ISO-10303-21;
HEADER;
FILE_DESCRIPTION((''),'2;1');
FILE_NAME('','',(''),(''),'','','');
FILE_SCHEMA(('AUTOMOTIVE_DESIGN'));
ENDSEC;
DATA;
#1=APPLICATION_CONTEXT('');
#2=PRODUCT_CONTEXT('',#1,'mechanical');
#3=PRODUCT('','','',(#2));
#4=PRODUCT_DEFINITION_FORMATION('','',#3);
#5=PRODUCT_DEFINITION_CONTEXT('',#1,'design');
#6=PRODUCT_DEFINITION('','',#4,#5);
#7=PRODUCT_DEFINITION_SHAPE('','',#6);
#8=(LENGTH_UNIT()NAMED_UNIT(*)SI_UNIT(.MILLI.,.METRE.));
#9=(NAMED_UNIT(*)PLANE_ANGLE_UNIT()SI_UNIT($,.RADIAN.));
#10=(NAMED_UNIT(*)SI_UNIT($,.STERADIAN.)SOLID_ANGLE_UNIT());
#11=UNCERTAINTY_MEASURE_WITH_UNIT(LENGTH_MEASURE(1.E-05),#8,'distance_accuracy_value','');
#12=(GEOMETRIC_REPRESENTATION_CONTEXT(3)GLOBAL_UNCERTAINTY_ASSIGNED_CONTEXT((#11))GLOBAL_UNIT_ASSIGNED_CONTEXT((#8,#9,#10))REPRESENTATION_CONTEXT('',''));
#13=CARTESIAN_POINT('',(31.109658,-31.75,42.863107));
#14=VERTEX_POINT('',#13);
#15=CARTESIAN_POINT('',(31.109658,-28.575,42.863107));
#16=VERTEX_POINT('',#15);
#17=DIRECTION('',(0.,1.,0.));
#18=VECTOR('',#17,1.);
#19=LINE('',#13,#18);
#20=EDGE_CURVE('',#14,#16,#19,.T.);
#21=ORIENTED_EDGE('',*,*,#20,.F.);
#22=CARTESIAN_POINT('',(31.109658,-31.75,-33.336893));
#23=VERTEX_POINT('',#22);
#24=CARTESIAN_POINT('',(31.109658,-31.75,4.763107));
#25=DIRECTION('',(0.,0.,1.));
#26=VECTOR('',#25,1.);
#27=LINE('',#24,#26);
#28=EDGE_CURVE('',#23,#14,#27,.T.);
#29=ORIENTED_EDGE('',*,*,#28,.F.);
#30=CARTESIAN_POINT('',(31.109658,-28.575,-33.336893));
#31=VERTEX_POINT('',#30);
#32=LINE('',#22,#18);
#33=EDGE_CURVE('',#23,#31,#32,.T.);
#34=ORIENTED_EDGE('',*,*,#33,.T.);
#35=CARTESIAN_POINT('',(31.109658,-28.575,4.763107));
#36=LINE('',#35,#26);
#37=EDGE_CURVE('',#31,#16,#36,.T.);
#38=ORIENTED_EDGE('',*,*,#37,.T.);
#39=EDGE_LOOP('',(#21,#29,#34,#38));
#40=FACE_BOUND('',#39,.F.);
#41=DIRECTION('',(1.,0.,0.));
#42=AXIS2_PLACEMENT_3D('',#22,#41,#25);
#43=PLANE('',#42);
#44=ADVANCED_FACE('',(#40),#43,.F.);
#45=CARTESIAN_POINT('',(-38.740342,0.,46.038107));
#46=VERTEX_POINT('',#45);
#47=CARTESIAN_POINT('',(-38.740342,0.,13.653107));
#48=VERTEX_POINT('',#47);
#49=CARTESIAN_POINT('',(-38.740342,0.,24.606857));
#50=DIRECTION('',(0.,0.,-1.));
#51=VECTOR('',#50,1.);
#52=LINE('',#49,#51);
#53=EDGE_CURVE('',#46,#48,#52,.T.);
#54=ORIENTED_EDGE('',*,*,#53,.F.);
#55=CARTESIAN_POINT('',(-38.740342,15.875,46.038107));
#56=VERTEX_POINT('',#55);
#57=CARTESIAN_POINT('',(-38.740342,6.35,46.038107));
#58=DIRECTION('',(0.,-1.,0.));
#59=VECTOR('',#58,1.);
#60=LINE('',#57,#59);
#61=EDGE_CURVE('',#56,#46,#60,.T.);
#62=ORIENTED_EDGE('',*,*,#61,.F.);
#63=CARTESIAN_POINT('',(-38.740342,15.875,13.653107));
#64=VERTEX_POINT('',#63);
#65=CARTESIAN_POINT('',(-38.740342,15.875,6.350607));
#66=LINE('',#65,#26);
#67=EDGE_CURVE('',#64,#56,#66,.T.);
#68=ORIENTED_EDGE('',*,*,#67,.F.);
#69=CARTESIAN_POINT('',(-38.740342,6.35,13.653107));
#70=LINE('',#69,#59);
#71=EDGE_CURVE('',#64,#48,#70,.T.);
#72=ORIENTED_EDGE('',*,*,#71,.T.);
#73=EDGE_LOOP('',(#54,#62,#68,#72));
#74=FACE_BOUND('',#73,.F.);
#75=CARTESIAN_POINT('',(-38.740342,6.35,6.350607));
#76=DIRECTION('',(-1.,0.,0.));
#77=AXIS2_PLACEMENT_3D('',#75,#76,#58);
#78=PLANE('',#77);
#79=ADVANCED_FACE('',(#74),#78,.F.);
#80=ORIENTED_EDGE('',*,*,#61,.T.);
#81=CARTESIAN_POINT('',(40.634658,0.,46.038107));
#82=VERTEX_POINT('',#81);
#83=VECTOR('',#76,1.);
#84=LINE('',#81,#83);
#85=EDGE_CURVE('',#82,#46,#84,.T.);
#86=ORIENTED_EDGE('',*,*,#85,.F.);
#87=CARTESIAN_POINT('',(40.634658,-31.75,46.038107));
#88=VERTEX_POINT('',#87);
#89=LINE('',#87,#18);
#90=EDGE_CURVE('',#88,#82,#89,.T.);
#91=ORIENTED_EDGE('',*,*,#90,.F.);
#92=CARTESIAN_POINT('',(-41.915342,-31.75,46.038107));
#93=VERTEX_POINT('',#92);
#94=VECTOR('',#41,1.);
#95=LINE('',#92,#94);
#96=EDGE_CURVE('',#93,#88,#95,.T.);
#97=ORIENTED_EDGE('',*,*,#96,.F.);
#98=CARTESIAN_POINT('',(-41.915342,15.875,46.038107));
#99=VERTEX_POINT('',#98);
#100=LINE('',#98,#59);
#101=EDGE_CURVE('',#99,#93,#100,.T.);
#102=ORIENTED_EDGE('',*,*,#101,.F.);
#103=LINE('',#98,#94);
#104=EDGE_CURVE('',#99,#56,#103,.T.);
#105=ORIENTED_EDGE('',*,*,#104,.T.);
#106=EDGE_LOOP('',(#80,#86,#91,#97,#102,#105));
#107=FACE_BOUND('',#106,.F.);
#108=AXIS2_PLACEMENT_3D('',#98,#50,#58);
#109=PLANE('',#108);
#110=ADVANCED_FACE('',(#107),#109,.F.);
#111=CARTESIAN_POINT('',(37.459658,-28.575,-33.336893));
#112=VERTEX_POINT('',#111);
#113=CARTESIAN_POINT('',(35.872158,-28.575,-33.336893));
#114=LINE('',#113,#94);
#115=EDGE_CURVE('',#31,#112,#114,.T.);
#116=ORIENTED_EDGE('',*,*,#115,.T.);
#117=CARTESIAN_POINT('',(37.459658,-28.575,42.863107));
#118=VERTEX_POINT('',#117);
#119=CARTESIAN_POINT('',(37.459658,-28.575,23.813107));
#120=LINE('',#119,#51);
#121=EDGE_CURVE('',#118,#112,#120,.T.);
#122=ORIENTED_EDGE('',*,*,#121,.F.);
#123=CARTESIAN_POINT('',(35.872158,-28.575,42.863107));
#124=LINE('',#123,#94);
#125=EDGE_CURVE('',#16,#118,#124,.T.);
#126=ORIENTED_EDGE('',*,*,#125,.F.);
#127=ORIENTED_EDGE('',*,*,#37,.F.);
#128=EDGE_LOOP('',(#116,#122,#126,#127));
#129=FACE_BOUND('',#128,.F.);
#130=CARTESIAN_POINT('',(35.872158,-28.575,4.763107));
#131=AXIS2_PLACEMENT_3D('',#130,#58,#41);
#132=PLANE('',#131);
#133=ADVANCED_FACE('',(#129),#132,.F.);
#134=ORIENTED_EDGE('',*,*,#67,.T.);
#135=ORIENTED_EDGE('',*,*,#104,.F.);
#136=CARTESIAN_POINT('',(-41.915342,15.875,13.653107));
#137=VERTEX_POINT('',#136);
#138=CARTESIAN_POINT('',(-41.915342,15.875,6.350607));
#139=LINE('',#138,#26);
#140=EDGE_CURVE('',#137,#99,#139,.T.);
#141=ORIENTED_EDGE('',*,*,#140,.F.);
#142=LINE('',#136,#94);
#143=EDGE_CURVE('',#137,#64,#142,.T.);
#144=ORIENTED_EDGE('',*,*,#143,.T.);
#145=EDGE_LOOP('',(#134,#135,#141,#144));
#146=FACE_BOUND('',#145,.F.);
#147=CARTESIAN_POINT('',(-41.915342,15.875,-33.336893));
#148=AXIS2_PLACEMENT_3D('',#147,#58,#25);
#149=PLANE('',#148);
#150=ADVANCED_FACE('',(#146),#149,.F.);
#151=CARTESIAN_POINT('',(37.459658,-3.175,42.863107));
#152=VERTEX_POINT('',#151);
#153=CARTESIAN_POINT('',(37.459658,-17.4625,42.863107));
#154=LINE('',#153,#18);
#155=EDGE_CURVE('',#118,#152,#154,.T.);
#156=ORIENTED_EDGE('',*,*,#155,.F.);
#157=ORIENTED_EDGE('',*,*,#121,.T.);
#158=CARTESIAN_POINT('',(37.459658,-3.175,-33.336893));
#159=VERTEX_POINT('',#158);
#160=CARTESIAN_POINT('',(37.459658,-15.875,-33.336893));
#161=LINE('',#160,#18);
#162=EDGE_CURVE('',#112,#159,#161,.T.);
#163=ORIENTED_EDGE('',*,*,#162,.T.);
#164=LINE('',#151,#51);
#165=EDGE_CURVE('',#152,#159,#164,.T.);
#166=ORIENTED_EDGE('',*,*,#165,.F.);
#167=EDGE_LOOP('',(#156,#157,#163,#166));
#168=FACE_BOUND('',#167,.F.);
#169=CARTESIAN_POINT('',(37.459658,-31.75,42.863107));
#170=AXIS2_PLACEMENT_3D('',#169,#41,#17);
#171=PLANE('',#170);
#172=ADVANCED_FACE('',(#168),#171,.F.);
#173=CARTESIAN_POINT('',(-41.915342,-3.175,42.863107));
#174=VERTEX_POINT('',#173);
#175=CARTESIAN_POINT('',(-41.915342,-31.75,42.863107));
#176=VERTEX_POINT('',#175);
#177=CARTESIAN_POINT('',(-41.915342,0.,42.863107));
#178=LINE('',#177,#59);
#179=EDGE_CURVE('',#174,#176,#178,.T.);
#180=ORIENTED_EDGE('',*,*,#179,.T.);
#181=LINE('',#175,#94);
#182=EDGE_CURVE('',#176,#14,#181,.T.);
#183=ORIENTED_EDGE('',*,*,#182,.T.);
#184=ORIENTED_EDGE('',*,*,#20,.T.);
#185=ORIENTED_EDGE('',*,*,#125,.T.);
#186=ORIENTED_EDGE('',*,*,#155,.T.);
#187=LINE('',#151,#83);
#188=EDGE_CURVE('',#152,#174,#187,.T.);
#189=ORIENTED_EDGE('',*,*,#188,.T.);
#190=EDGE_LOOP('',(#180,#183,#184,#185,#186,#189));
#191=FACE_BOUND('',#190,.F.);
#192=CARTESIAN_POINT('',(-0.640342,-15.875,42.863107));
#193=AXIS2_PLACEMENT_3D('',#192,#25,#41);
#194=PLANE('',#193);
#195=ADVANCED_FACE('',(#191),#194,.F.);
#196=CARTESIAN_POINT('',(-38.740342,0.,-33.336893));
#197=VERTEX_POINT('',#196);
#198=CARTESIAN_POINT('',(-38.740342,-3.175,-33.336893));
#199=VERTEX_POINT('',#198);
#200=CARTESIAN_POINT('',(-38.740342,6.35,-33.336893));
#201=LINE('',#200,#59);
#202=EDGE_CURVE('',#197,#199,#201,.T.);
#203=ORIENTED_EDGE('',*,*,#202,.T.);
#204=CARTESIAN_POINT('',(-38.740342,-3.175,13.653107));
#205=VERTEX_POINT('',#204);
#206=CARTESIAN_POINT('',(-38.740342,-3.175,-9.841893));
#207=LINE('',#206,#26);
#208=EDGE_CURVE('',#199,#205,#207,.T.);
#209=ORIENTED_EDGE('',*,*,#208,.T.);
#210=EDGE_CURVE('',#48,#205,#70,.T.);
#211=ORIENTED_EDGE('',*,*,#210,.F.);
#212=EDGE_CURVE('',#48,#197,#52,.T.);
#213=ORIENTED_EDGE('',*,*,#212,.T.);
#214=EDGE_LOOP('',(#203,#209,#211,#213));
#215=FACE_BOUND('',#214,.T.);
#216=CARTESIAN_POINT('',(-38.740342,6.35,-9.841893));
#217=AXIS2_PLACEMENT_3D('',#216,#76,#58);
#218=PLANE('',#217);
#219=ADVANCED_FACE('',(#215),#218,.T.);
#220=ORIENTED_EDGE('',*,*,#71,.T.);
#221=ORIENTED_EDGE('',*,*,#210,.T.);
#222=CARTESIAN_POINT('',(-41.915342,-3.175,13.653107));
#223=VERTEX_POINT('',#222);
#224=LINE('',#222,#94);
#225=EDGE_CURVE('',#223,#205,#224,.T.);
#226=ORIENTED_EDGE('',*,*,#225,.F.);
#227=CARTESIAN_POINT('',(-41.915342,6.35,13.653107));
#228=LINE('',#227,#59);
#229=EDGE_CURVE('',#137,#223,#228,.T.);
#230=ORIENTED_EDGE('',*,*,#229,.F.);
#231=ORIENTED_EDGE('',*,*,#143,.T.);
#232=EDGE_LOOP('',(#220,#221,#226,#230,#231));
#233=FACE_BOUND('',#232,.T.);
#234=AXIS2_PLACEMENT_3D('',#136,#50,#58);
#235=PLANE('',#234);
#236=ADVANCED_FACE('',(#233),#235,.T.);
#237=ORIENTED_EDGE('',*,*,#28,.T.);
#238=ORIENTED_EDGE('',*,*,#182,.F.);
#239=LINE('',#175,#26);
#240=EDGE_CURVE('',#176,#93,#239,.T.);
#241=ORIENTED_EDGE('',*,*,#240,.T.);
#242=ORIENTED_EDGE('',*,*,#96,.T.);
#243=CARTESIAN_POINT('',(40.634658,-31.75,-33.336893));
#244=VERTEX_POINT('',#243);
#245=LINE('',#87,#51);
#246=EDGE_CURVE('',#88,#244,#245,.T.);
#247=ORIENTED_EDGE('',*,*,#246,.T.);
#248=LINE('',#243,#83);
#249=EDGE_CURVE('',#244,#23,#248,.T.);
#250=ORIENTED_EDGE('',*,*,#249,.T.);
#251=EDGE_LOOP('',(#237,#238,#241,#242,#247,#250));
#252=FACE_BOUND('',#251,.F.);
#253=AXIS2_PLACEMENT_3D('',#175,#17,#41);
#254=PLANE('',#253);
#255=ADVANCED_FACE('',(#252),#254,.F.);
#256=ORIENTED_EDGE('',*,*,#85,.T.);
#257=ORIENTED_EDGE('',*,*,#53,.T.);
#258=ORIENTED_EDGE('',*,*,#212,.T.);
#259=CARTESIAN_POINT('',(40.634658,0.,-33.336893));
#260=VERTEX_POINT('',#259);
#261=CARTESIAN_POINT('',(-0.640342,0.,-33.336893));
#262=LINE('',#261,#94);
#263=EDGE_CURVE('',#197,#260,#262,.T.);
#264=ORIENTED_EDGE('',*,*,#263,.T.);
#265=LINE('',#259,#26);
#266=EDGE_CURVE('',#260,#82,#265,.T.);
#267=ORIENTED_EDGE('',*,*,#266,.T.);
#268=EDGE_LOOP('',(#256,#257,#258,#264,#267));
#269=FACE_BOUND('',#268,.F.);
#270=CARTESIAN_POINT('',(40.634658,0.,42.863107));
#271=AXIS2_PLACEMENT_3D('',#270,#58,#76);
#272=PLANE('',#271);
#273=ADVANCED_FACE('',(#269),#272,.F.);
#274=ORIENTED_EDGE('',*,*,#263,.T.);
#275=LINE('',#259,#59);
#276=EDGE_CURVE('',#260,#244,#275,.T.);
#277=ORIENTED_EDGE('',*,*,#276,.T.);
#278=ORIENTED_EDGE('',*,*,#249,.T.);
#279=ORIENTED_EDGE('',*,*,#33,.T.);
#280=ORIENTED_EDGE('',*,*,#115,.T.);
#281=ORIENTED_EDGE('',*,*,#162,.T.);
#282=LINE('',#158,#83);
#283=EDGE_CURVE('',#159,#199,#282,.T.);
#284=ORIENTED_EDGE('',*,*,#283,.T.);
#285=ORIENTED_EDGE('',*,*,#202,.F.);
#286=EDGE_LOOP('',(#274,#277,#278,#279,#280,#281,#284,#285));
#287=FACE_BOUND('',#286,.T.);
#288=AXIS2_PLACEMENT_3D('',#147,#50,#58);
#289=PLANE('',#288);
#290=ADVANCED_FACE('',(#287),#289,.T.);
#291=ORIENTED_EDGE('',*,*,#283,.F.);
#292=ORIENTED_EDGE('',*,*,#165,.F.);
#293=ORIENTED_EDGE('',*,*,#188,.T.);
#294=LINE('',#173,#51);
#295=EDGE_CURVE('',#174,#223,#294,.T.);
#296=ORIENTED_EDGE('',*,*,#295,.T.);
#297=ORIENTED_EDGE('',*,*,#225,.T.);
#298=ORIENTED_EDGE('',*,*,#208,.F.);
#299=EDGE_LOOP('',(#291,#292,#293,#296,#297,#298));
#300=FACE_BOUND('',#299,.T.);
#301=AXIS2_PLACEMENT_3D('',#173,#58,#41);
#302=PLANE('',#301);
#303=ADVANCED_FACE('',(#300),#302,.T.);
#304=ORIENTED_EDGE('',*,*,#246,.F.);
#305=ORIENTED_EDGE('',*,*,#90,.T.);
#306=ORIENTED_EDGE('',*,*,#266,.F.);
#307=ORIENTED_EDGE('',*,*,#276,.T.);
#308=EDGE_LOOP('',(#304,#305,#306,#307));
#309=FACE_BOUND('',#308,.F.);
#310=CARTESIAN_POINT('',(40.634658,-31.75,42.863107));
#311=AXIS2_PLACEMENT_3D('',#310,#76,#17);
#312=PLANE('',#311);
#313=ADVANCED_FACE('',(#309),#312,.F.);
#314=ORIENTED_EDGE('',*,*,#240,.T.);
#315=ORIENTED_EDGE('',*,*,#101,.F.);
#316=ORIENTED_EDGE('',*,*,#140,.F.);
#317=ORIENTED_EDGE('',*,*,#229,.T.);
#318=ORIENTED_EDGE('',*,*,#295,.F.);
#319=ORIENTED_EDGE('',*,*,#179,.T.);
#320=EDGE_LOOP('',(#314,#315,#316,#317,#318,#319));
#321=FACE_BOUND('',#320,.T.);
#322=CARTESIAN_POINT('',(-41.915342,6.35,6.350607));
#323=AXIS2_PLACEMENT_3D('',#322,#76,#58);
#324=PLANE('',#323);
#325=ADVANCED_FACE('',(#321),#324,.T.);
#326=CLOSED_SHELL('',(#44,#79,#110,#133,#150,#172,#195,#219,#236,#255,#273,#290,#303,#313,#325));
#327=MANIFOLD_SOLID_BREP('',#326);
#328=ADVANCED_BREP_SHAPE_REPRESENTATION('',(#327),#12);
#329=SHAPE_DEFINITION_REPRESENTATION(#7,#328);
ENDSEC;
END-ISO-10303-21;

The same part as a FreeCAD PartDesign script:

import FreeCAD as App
import Part
import Sketcher
Q = App.Units.Quantity


def add_polygon(sketch, points):
    """Adds a closed chain of lines whose ends are joined by coincident constraints."""
    first, n = sketch.GeometryCount, len(points)
    for a, b in zip(points, points[1:] + points[:1]):
        sketch.addGeometry(Part.LineSegment(App.Vector(*a, 0), App.Vector(*b, 0)), False)
    for i in range(n):
        sketch.addConstraint(Sketcher.Constraint("Coincident", first + i, 2, first + (i + 1) % n, 1))

doc = App.newDocument("Part")
params = doc.addObject("Spreadsheet::Sheet", "Params")
for row, (alias, value) in enumerate([
    ("sketch1_height", "3 in"),
    ("sketch1_width", "3.25 in"),
    ("pad1_length", "1.25 in"),
    ("sketch2_width", "3.125 in"),
    ("sketch2_height", "1.125 in"),
    ("pocket1_length", "4 in"),
    ("sketch3_height", "3 in"),
    ("sketch3_width", "0.375 in"),
    ("pad2_length", "0.125 in"),
    ("sketch4_width", "3.25 in"),
    ("sketch4_height", "1.25 in"),
    ("pad3_length", "0.125 in"),
    ("sketch5_width", "0.75 in"),
    ("sketch5_height", "3.125 in"),
    ("pad4_length", "0.125 in"),
    ("sketch6_width", "0.75 in"),
    ("sketch6_height", "1.85 in"),
    ("pocket2_length", "0.125 in"),
], start=1):
    params.set(f"A{row}", alias)
    params.set(f"B{row}", "=" + value)
    params.setAlias(f"B{row}", alias)

body = doc.addObject("PartDesign::Body", "Body")

# Sketch on XZ plane
sketch1 = body.newObject("Sketcher::SketchObject", "Sketch")
sketch1.AttachmentSupport = (doc.getObject("XZ_Plane"), [""])
sketch1.MapMode = "FlatFace"
add_polygon(sketch1, [(-42, 43), (-42, -33), (41, -33), (41, 43)])  # lines 0-3
sketch1.addConstraint(Sketcher.Constraint("Vertical", 0))
sketch1.addConstraint(Sketcher.Constraint("Horizontal", 1))
sketch1.addConstraint(Sketcher.Constraint("Vertical", 2))
sketch1.addConstraint(Sketcher.Constraint("Horizontal", 3))
sketch1.addConstraint(Sketcher.Constraint("DistanceY", 0, 2, 0, 1, Q("3 in")))
sketch1.addConstraint(Sketcher.Constraint("DistanceX", 1, 1, 1, 2, Q("3.25 in")))
sketch1.addConstraint(Sketcher.Constraint("DistanceX", -1, 1, 1, 2, 40.634658))
sketch1.addConstraint(Sketcher.Constraint("DistanceY", 0, 2, -1, 1, 33.336893))
sketch1.setExpression("Constraints[8]", "Params.sketch1_height")
sketch1.setExpression("Constraints[9]", "Params.sketch1_width")
pad1 = body.newObject("PartDesign::Pad", "Pad")
pad1.Profile = sketch1
pad1.setExpression("Length", "Params.pad1_length")

# Sketch on XY plane
sketch2 = body.newObject("Sketcher::SketchObject", "Sketch001")
sketch2.AttachmentSupport = (doc.getObject("XY_Plane"), [""])
sketch2.MapMode = "FlatFace"
sketch2.AttachmentOffset = App.Placement(App.Vector(0, 0, 42.863107), App.Rotation())
add_polygon(sketch2, [(-42, -3), (-42, -32), (37, -32), (37, -3)])  # lines 0-3
sketch2.addConstraint(Sketcher.Constraint("Vertical", 0))
sketch2.addConstraint(Sketcher.Constraint("Horizontal", 1))
sketch2.addConstraint(Sketcher.Constraint("Vertical", 2))
sketch2.addConstraint(Sketcher.Constraint("Horizontal", 3))
sketch2.addConstraint(Sketcher.Constraint("DistanceX", 1, 1, 1, 2, Q("3.125 in")))
sketch2.addConstraint(Sketcher.Constraint("DistanceY", 0, 2, 0, 1, Q("1.125 in")))
sketch2.addConstraint(Sketcher.Constraint("DistanceY", 0, 2, -1, 1, Q("1.25 in")))
sketch2.addConstraint(Sketcher.Constraint("DistanceX", 0, 2, -1, 1, 41.915342))
sketch2.setExpression("Constraints[8]", "Params.sketch2_width")
sketch2.setExpression("Constraints[9]", "Params.sketch2_height")
pocket1 = body.newObject("PartDesign::Pocket", "Pocket")
pocket1.Profile = sketch2
pocket1.setExpression("Length", "Params.pocket1_length")

# Sketch on XZ plane
sketch3 = body.newObject("Sketcher::SketchObject", "Sketch002")
sketch3.AttachmentSupport = (doc.getObject("XZ_Plane"), [""])
sketch3.MapMode = "FlatFace"
sketch3.AttachmentOffset = App.Placement(App.Vector(0, 0, 1.25 * 25.4), App.Rotation())
add_polygon(sketch3, [(31, 43), (31, -33), (41, -33), (41, 43)])  # lines 0-3
sketch3.addConstraint(Sketcher.Constraint("Vertical", 0))
sketch3.addConstraint(Sketcher.Constraint("Horizontal", 1))
sketch3.addConstraint(Sketcher.Constraint("Vertical", 2))
sketch3.addConstraint(Sketcher.Constraint("Horizontal", 3))
sketch3.addConstraint(Sketcher.Constraint("DistanceY", 0, 2, 0, 1, Q("3 in")))
sketch3.addConstraint(Sketcher.Constraint("DistanceX", 1, 1, 1, 2, Q("0.375 in")))
sketch3.addConstraint(Sketcher.Constraint("DistanceX", -1, 1, 1, 2, 40.634658))
sketch3.addConstraint(Sketcher.Constraint("DistanceY", 0, 2, -1, 1, 33.336893))
sketch3.setExpression("Constraints[8]", "Params.sketch3_height")
sketch3.setExpression("Constraints[9]", "Params.sketch3_width")
pad2 = body.newObject("PartDesign::Pad", "Pad001")
pad2.Profile = sketch3
pad2.setExpression("Length", "Params.pad2_length")
pad2.Reversed = True

# Sketch on XY plane
sketch4 = body.newObject("Sketcher::SketchObject", "Sketch003")
sketch4.AttachmentSupport = (doc.getObject("XY_Plane"), [""])
sketch4.MapMode = "FlatFace"
sketch4.AttachmentOffset = App.Placement(App.Vector(0, 0, 42.863107), App.Rotation())
add_polygon(sketch4, [(41, -32), (41, 0), (-42, 0), (-42, -32)])  # lines 0-3
sketch4.addConstraint(Sketcher.Constraint("Vertical", 0))
sketch4.addConstraint(Sketcher.Constraint("Horizontal", 1))
sketch4.addConstraint(Sketcher.Constraint("Vertical", 2))
sketch4.addConstraint(Sketcher.Constraint("Horizontal", 3))
sketch4.addConstraint(Sketcher.Constraint("PointOnObject", 0, 2, -1))
sketch4.addConstraint(Sketcher.Constraint("DistanceX", 1, 2, 1, 1, Q("3.25 in")))
sketch4.addConstraint(Sketcher.Constraint("DistanceY", 0, 1, 0, 2, Q("1.25 in")))
sketch4.addConstraint(Sketcher.Constraint("DistanceX", -1, 1, 0, 2, 40.634658))
sketch4.setExpression("Constraints[9]", "Params.sketch4_width")
sketch4.setExpression("Constraints[10]", "Params.sketch4_height")
pad3 = body.newObject("PartDesign::Pad", "Pad002")
pad3.Profile = sketch4
pad3.setExpression("Length", "Params.pad3_length")

# Sketch on YZ plane
sketch5 = body.newObject("Sketcher::SketchObject", "Sketch004")
sketch5.AttachmentSupport = (doc.getObject("YZ_Plane"), [""])
sketch5.MapMode = "FlatFace"
sketch5.AttachmentOffset = App.Placement(App.Vector(0, 0, -41.915342), App.Rotation())
add_polygon(sketch5, [(16, 46), (16, -33), (-3, -33), (-3, 46)])  # lines 0-3
sketch5.addConstraint(Sketcher.Constraint("Vertical", 0))
sketch5.addConstraint(Sketcher.Constraint("Horizontal", 1))
sketch5.addConstraint(Sketcher.Constraint("Vertical", 2))
sketch5.addConstraint(Sketcher.Constraint("Horizontal", 3))
sketch5.addConstraint(Sketcher.Constraint("DistanceX", 1, 2, 1, 1, Q("0.75 in")))
sketch5.addConstraint(Sketcher.Constraint("DistanceY", 0, 2, 0, 1, Q("3.125 in")))
sketch5.addConstraint(Sketcher.Constraint("DistanceX", -1, 1, 0, 2, Q("0.625 in")))
sketch5.addConstraint(Sketcher.Constraint("DistanceY", 0, 2, -1, 1, 33.336893))
sketch5.setExpression("Constraints[8]", "Params.sketch5_width")
sketch5.setExpression("Constraints[9]", "Params.sketch5_height")
pad4 = body.newObject("PartDesign::Pad", "Pad003")
pad4.Profile = sketch5
pad4.setExpression("Length", "Params.pad4_length")

# Sketch on YZ plane
sketch6 = body.newObject("Sketcher::SketchObject", "Sketch005")
sketch6.AttachmentSupport = (doc.getObject("YZ_Plane"), [""])
sketch6.MapMode = "FlatFace"
sketch6.AttachmentOffset = App.Placement(App.Vector(0, 0, -41.915342), App.Rotation())
add_polygon(sketch6, [(16, 14), (16, -33), (-3, -33), (-3, 14)])  # lines 0-3
sketch6.addConstraint(Sketcher.Constraint("Vertical", 0))
sketch6.addConstraint(Sketcher.Constraint("Horizontal", 1))
sketch6.addConstraint(Sketcher.Constraint("Vertical", 2))
sketch6.addConstraint(Sketcher.Constraint("Horizontal", 3))
sketch6.addConstraint(Sketcher.Constraint("DistanceX", 1, 2, 1, 1, Q("0.75 in")))
sketch6.addConstraint(Sketcher.Constraint("DistanceY", 0, 2, 0, 1, Q("1.85 in")))
sketch6.addConstraint(Sketcher.Constraint("DistanceX", -1, 1, 0, 2, Q("0.625 in")))
sketch6.addConstraint(Sketcher.Constraint("DistanceY", 0, 2, -1, 1, 33.336893))
sketch6.setExpression("Constraints[8]", "Params.sketch6_width")
sketch6.setExpression("Constraints[9]", "Params.sketch6_height")
pocket2 = body.newObject("PartDesign::Pocket", "Pocket001")
pocket2.Profile = sketch6
pocket2.setExpression("Length", "Params.pocket2_length")
pocket2.Reversed = True

doc.recompute()
